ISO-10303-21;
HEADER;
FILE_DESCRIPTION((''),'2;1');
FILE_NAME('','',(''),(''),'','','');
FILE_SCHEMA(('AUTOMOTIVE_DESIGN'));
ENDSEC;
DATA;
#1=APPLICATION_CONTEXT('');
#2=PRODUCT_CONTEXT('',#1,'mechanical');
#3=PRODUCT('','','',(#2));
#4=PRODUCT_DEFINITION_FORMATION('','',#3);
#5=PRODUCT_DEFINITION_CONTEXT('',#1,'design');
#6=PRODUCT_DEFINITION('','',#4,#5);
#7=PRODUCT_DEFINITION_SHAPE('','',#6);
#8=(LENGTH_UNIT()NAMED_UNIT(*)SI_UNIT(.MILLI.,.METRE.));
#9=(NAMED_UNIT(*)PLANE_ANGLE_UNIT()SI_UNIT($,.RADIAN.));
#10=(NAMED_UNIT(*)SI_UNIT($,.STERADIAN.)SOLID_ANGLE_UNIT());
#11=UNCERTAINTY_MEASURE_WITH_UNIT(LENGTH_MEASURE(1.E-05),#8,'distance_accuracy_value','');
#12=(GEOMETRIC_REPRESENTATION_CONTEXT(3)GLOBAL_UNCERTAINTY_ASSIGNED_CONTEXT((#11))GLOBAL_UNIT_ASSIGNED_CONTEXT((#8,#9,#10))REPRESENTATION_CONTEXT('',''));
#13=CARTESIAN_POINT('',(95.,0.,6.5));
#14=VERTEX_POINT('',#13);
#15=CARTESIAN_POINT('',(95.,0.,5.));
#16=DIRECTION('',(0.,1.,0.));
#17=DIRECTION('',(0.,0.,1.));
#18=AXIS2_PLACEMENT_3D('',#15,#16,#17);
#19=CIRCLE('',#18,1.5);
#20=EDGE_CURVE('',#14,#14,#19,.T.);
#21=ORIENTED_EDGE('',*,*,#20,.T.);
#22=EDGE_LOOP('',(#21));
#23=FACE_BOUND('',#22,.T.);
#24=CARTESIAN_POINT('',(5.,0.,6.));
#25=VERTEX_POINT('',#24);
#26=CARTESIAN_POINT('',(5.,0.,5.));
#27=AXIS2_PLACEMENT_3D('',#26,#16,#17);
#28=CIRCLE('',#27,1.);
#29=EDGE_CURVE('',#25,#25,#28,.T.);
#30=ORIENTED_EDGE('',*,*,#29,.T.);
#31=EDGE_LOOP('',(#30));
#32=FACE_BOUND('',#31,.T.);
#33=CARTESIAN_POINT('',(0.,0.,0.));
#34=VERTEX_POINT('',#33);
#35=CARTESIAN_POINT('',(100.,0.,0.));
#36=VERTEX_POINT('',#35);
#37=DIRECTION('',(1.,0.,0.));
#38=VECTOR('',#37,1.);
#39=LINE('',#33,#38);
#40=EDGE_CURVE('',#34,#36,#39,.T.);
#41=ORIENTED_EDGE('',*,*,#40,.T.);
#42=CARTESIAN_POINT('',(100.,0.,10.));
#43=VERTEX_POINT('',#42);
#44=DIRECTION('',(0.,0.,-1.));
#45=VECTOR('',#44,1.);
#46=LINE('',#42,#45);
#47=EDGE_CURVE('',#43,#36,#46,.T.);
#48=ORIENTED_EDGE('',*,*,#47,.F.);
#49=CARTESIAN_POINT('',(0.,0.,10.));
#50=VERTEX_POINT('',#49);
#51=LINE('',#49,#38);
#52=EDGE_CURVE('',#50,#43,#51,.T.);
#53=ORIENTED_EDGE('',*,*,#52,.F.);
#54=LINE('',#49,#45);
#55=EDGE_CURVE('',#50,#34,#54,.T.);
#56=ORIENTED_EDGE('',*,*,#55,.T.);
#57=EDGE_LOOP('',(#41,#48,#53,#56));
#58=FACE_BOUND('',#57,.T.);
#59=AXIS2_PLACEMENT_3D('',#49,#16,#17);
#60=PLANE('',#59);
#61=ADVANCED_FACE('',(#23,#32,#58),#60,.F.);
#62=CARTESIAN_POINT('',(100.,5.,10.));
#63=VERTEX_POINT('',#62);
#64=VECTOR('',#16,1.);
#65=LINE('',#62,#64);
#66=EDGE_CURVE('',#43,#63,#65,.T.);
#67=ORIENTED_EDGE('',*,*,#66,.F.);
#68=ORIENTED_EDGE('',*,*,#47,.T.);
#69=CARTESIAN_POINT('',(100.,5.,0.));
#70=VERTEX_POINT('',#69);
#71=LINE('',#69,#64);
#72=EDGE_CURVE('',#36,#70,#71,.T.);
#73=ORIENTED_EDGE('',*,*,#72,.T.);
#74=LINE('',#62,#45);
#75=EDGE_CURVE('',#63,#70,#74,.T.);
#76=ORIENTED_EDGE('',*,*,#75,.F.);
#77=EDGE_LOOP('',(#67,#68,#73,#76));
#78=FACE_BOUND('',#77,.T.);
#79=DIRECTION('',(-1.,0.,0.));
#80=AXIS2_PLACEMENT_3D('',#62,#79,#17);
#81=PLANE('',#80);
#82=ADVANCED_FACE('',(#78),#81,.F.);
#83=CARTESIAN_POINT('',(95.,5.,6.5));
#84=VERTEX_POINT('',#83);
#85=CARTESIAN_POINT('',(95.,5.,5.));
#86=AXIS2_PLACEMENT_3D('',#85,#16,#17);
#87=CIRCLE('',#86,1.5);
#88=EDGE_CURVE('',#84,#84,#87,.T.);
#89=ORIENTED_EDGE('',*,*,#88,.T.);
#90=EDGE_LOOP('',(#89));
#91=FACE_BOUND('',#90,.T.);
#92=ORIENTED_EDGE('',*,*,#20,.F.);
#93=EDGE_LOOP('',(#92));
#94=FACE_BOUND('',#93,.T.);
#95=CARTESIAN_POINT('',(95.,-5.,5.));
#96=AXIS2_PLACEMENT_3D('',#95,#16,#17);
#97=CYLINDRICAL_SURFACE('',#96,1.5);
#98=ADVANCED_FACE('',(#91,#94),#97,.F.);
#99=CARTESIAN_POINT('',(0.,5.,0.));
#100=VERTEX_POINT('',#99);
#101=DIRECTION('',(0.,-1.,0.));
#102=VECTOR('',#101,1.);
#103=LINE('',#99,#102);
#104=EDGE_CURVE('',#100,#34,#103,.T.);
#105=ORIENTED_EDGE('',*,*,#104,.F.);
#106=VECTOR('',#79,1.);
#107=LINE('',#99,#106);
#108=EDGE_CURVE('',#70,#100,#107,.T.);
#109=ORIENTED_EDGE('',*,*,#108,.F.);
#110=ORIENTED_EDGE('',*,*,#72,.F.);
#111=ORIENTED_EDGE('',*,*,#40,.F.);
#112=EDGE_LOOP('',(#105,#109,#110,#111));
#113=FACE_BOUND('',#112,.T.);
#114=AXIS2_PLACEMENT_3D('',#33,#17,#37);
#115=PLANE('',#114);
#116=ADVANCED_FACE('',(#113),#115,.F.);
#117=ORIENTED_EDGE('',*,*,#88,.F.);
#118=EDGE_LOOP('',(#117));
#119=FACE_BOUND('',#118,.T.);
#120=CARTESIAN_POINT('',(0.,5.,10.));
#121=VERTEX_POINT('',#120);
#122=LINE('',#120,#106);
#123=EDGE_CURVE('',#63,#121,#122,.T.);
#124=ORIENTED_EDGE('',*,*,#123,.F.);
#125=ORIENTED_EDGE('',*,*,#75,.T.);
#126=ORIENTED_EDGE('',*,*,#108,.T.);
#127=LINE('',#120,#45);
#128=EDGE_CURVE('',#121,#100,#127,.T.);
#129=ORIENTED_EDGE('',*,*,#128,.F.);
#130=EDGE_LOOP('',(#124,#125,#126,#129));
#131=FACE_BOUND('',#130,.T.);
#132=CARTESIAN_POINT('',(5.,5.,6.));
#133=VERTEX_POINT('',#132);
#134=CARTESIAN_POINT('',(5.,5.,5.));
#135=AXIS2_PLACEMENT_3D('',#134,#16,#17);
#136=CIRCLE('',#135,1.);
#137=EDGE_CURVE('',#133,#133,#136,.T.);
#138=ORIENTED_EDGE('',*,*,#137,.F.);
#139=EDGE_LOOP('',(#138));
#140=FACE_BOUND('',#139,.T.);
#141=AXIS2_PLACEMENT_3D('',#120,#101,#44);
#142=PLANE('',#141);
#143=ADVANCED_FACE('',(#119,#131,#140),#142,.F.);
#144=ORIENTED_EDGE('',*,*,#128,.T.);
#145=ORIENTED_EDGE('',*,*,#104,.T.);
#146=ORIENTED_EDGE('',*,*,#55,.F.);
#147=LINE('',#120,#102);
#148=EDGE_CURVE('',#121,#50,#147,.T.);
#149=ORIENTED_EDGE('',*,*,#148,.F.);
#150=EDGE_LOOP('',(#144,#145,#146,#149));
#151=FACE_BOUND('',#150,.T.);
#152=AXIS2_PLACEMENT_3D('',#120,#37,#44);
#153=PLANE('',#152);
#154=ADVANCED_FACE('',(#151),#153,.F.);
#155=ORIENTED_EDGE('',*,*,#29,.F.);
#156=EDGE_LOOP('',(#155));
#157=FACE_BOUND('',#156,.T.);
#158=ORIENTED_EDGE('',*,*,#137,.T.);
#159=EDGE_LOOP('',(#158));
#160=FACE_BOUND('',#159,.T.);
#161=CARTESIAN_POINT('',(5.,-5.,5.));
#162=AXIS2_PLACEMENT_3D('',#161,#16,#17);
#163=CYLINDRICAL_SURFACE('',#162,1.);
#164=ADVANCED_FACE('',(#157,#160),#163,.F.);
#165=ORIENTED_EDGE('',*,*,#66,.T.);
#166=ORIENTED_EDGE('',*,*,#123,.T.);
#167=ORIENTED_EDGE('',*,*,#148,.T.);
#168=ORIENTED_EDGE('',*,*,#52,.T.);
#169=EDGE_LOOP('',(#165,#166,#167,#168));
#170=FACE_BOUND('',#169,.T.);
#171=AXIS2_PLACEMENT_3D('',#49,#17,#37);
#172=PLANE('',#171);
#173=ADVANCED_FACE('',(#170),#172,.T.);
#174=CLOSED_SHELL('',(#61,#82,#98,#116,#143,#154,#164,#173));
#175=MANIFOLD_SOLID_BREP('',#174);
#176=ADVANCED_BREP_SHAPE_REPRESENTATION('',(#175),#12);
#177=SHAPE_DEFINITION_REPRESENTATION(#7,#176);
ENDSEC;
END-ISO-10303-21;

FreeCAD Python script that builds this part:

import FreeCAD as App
import Part
import Sketcher


def add_polygon(sketch, points):
    """Adds a closed chain of lines whose ends are joined by coincident constraints."""
    first, n = sketch.GeometryCount, len(points)
    for a, b in zip(points, points[1:] + points[:1]):
        sketch.addGeometry(Part.LineSegment(App.Vector(*a, 0), App.Vector(*b, 0)), False)
    for i in range(n):
        sketch.addConstraint(Sketcher.Constraint("Coincident", first + i, 2, first + (i + 1) % n, 1))

doc = App.newDocument("Part")
body = doc.addObject("PartDesign::Body", "Body")

# Sketch on XY plane
sketch1 = body.newObject("Sketcher::SketchObject", "Sketch")
sketch1.AttachmentSupport = (doc.getObject("XY_Plane"), [""])
sketch1.MapMode = "FlatFace"
add_polygon(sketch1, [(0, 5), (0, 0), (100, 0), (100, 5)])  # lines 0-3
sketch1.addConstraint(Sketcher.Constraint("Vertical", 0))
sketch1.addConstraint(Sketcher.Constraint("Horizontal", 1))
sketch1.addConstraint(Sketcher.Constraint("Vertical", 2))
sketch1.addConstraint(Sketcher.Constraint("Horizontal", 3))
sketch1.addConstraint(Sketcher.Constraint("Coincident", 0, 2, -1, 1))
sketch1.addConstraint(Sketcher.Constraint("DistanceX", 1, 1, 1, 2, 100.0))
sketch1.addConstraint(Sketcher.Constraint("DistanceY", 0, 2, 0, 1, 5.0))
pad1 = body.newObject("PartDesign::Pad", "Pad")
pad1.Profile = sketch1
pad1.Length = 10

# Sketch on XZ plane
sketch2 = body.newObject("Sketcher::SketchObject", "Sketch001")
sketch2.AttachmentSupport = (doc.getObject("XZ_Plane"), [""])
sketch2.MapMode = "FlatFace"
sketch2.AttachmentOffset = App.Placement(App.Vector(0, 0, -5), App.Rotation())
sketch2.addGeometry(Part.Circle(App.Vector(5, 5, 0), App.Vector(0, 0, 1), 1), False)
sketch2.addGeometry(Part.Circle(App.Vector(95, 5, 0), App.Vector(0, 0, 1), 1.5), False)
sketch2.addConstraint(Sketcher.Constraint("Horizontal", 0, 3, 1, 3))
sketch2.addConstraint(Sketcher.Constraint("Diameter", 0, 2.0))
sketch2.addConstraint(Sketcher.Constraint("Diameter", 1, 3.0))
sketch2.addConstraint(Sketcher.Constraint("DistanceX", -1, 1, 0, 3, 5.0))
sketch2.addConstraint(Sketcher.Constraint("DistanceY", -1, 1, 0, 3, 5.0))
sketch2.addConstraint(Sketcher.Constraint("DistanceX", -1, 1, 1, 3, 95.0))
pocket1 = body.newObject("PartDesign::Pocket", "Pocket")
pocket1.Profile = sketch2
pocket1.Length = 10
pocket1.Reversed = True

doc.recompute()
